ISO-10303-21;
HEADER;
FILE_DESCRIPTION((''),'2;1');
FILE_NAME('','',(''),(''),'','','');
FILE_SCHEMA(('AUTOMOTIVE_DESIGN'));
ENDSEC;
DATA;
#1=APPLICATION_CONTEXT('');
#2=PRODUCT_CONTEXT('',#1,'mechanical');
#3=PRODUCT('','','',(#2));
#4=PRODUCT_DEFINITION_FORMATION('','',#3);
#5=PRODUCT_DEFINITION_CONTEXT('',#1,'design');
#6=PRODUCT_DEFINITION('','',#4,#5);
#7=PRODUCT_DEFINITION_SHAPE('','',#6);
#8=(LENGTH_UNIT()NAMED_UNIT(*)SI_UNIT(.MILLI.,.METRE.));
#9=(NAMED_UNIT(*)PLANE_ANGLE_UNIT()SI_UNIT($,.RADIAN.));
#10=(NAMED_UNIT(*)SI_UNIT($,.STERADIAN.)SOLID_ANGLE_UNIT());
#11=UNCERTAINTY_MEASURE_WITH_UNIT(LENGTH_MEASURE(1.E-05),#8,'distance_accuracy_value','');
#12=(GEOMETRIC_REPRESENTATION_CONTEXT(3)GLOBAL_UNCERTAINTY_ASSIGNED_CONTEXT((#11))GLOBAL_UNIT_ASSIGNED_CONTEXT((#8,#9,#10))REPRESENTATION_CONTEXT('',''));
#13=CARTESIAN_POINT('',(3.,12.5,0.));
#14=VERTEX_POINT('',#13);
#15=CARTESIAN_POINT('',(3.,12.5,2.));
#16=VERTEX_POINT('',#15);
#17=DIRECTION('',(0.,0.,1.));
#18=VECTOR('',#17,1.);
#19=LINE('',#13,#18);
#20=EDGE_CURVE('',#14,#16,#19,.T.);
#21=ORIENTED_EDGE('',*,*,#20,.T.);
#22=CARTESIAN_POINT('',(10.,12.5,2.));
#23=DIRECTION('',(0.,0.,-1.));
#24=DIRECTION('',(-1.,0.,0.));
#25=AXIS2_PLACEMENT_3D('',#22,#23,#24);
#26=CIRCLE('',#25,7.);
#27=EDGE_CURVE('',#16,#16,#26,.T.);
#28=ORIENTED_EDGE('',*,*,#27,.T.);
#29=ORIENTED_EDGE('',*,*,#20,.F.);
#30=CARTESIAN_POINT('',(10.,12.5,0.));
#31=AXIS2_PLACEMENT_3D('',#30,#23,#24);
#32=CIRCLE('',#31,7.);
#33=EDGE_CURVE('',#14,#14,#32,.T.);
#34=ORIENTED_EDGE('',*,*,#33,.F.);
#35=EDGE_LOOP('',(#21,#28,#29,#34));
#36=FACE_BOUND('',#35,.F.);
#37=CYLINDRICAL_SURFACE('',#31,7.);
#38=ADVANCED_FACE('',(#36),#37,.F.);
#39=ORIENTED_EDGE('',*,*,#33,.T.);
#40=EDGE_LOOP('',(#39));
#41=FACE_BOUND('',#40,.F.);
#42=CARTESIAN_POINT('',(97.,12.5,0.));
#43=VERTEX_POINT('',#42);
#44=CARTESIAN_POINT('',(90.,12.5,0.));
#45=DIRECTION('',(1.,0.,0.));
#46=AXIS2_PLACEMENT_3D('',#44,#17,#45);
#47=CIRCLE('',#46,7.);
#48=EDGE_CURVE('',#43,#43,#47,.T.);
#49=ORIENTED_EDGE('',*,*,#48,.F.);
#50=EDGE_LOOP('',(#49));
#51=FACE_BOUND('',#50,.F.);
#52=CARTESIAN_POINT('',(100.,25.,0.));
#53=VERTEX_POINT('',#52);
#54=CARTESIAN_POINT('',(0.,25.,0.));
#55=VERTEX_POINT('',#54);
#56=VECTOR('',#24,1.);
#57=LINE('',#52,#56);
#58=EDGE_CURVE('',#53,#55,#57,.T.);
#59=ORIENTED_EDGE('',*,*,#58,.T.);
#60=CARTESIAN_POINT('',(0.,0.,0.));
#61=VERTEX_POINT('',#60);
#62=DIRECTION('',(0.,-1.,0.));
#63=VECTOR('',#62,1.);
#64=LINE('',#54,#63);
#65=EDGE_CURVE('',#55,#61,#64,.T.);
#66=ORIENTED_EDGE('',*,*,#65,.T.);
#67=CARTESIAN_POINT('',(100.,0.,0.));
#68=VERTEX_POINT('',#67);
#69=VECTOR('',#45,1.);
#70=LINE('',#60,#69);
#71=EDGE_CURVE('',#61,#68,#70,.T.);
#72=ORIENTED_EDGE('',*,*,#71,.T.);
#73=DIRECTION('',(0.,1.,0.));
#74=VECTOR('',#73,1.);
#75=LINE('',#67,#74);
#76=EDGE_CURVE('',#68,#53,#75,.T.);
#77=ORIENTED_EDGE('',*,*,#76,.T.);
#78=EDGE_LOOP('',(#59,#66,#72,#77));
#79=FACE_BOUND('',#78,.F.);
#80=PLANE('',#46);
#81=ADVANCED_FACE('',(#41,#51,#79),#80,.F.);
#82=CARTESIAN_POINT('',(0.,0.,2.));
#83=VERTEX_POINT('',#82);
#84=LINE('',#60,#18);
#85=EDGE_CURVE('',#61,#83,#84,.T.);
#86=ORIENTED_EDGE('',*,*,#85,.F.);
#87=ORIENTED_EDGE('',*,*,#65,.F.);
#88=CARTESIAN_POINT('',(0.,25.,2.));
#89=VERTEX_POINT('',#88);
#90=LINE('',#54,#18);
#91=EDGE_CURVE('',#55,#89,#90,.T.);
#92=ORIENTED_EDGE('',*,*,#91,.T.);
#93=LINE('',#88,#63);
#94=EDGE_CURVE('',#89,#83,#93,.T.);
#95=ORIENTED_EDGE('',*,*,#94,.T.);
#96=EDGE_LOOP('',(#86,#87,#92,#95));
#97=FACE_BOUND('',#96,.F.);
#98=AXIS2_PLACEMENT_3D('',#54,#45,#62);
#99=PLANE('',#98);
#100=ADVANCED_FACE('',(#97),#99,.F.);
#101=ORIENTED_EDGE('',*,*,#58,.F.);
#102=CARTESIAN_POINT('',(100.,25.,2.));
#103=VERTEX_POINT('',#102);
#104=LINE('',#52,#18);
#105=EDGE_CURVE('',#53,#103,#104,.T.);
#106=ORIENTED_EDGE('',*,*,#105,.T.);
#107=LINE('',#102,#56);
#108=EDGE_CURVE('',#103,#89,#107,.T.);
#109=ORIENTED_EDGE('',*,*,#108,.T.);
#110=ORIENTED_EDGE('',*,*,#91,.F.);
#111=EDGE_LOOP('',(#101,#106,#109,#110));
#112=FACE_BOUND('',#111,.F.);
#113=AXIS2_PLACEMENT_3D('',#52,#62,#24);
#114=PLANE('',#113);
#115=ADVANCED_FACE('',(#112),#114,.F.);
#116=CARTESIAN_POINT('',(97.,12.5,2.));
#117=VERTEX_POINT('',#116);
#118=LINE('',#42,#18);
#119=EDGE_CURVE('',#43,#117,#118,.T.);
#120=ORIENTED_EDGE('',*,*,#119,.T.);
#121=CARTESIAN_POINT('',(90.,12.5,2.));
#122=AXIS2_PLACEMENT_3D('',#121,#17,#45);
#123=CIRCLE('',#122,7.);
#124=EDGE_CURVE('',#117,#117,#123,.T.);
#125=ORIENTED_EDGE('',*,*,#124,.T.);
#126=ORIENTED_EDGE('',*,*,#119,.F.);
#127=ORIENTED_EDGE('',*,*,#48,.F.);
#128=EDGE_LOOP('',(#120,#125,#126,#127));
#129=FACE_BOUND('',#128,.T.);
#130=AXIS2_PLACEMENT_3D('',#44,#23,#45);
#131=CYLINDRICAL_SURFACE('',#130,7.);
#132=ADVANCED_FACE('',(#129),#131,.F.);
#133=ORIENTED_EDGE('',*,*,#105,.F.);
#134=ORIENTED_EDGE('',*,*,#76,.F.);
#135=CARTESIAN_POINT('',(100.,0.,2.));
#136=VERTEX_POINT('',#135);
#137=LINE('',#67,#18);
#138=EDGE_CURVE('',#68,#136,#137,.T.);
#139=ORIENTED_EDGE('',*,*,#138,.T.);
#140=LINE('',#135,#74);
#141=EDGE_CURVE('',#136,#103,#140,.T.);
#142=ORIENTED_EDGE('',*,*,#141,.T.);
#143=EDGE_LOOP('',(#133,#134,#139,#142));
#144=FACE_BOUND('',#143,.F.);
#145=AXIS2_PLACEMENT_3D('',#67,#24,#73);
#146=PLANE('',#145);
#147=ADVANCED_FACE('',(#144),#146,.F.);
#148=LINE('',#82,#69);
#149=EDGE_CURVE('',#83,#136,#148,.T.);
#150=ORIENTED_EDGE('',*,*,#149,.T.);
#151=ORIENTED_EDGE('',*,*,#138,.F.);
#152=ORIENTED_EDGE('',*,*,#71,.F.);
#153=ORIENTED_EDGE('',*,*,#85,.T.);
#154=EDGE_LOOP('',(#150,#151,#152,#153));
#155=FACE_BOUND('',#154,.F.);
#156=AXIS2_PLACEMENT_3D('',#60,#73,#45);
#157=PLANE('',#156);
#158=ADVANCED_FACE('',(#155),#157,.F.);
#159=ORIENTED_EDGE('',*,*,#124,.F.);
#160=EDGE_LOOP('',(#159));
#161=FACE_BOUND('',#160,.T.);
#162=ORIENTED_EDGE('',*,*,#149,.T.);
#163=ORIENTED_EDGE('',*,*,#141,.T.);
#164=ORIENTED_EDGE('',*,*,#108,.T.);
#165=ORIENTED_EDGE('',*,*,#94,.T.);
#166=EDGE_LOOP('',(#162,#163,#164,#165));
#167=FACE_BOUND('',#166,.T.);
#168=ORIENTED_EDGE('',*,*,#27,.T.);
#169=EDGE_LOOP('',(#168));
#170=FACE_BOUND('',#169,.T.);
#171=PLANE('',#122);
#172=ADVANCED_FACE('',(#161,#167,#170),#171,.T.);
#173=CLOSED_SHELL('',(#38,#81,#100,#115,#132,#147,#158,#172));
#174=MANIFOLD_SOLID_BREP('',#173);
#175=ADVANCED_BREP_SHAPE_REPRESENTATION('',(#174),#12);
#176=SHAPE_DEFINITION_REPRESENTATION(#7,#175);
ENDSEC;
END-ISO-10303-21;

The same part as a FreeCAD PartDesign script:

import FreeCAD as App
import Part
import Sketcher

V = App.Vector
Q = App.Units.Quantity


def add_polygon(sketch, points):
    """Adds a closed chain of lines whose ends are joined by coincident constraints."""
    first, n = sketch.GeometryCount, len(points)
    for a, b in zip(points, points[1:] + points[:1]):
        sketch.addGeometry(Part.LineSegment(App.Vector(*a, 0), App.Vector(*b, 0)), False)
    for i in range(n):
        sketch.addConstraint(Sketcher.Constraint("Coincident", first + i, 2, first + (i + 1) % n, 1))

doc = App.newDocument("Part")
body = doc.addObject("PartDesign::Body", "Body")

sketch1 = body.newObject("Sketcher::SketchObject", "Sketch")
sketch1.AttachmentSupport = (doc.getObject("XY_Plane"), [""])
sketch1.MapMode = "FlatFace"
add_polygon(sketch1, [(0, 0), (100, 0), (100, 25), (0, 25)])
sketch1.addGeometry(Part.Circle(V(10, 12, 0), V(0, 0, 1), 7), False)
sketch1.addGeometry(Part.Circle(V(90, 12, 0), V(0, 0, 1), 7), False)
sketch1.addConstraint(Sketcher.Constraint("Horizontal", 0))
sketch1.addConstraint(Sketcher.Constraint("Vertical", 1))
sketch1.addConstraint(Sketcher.Constraint("Horizontal", 2))
sketch1.addConstraint(Sketcher.Constraint("Vertical", 3))
sketch1.addConstraint(Sketcher.Constraint("Coincident", 3, 2, -1, 1))
sketch1.addConstraint(Sketcher.Constraint("Equal", 4, 5))
sketch1.addConstraint(Sketcher.Constraint("Horizontal", 4, 3, 5, 3))
sketch1.addConstraint(Sketcher.Constraint("Diameter", 4, Q("14 mm")))
sketch1.addConstraint(Sketcher.Constraint("DistanceX", 0, 1, 0, 2, Q("100 mm")))
sketch1.addConstraint(Sketcher.Constraint("DistanceY", 1, 1, 1, 2, Q("25 mm")))
sketch1.addConstraint(Sketcher.Constraint("DistanceX", -1, 1, 4, 3, Q("10 mm")))
sketch1.addConstraint(Sketcher.Constraint("DistanceX", -1, 1, 5, 3, Q("90 mm")))
sketch1.addConstraint(Sketcher.Constraint("DistanceY", -1, 1, 4, 3, Q("12.5 mm")))
pad1 = body.newObject("PartDesign::Pad", "Pad")
pad1.Profile = sketch1
pad1.Length = 2

doc.recompute()
